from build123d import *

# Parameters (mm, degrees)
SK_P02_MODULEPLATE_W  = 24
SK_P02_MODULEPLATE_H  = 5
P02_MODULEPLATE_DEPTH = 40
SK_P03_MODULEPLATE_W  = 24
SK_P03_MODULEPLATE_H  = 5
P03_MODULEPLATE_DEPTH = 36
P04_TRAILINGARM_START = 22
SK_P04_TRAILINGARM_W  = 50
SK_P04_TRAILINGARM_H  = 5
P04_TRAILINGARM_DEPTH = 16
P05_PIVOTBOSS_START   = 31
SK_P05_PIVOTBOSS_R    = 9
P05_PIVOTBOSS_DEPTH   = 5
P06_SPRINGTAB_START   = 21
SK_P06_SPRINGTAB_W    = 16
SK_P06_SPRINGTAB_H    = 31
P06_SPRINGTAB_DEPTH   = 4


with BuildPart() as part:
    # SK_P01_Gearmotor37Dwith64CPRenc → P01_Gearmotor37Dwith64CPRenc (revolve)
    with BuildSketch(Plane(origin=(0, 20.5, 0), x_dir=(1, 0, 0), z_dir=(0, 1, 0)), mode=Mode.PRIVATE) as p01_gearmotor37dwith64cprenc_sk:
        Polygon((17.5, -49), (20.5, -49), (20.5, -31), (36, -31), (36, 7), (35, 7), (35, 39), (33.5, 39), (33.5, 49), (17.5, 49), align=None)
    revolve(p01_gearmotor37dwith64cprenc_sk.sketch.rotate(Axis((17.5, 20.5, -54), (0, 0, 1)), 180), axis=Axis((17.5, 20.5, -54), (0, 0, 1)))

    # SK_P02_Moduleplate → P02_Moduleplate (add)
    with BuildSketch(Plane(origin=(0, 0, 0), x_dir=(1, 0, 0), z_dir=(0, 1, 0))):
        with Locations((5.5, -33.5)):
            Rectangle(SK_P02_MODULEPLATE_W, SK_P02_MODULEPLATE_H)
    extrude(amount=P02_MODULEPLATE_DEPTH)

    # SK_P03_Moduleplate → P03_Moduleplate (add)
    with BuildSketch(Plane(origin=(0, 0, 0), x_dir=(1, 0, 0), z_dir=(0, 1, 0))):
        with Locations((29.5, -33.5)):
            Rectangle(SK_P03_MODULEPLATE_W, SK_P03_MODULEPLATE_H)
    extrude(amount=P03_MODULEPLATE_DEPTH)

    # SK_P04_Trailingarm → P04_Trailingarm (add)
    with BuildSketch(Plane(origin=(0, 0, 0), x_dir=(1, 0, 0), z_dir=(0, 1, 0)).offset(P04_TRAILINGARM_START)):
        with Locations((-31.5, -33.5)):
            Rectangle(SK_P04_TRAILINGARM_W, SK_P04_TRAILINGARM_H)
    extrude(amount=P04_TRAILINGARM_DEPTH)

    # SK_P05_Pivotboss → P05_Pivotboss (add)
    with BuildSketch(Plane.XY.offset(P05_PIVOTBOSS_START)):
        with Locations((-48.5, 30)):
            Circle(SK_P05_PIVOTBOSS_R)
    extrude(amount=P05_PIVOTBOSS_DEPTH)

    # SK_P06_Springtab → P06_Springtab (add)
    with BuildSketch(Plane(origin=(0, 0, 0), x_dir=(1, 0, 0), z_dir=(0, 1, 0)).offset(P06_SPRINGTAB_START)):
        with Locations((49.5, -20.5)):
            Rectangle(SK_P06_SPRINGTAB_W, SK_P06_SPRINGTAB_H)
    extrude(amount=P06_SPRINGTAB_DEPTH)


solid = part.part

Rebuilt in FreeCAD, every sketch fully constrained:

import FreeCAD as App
import Part
import Sketcher
from FreeCAD import Vector

doc = App.newDocument("Part")
body = doc.addObject("PartDesign::Body", "Body")

sketch1 = body.newObject("Sketcher::SketchObject", "Sketch")
sketch1.AttachmentSupport = (doc.getObject("XZ_Plane"), [""])
sketch1.MapMode = "FlatFace"
sketch1.AttachmentOffset = App.Placement(Vector(0, 0, -20.5), App.Rotation())
sketch1.addGeometry(Part.LineSegment(Vector(17.5, 49, 0), Vector(20.5, 49, 0)), False)
sketch1.addGeometry(Part.LineSegment(Vector(20.5, 49, 0), Vector(20.5, 31, 0)), False)
sketch1.addGeometry(Part.LineSegment(Vector(20.5, 31, 0), Vector(36, 31, 0)), False)
sketch1.addGeometry(Part.LineSegment(Vector(36, 31, 0), Vector(36, -7, 0)), False)
sketch1.addGeometry(Part.LineSegment(Vector(36, -7, 0), Vector(35, -7, 0)), False)
sketch1.addGeometry(Part.LineSegment(Vector(35, -7, 0), Vector(35, -39, 0)), False)
sketch1.addGeometry(Part.LineSegment(Vector(35, -39, 0), Vector(33.5, -39, 0)), False)
sketch1.addGeometry(Part.LineSegment(Vector(33.5, -39, 0), Vector(33.5, -49, 0)), False)
sketch1.addGeometry(Part.LineSegment(Vector(33.5, -49, 0), Vector(17.5, -49, 0)), False)
sketch1.addGeometry(Part.LineSegment(Vector(17.5, -49, 0), Vector(17.5, 49, 0)), False)
sketch1.addGeometry(Part.LineSegment(Vector(17.5, -49, 0), Vector(17.5, 49, 0)), True)
sketch1.addConstraint(Sketcher.Constraint("Coincident", 0, 2, 1, 1))
sketch1.addConstraint(Sketcher.Constraint("Coincident", 1, 2, 2, 1))
sketch1.addConstraint(Sketcher.Constraint("Coincident", 2, 2, 3, 1))
sketch1.addConstraint(Sketcher.Constraint("Coincident", 3, 2, 4, 1))
sketch1.addConstraint(Sketcher.Constraint("Coincident", 4, 2, 5, 1))
sketch1.addConstraint(Sketcher.Constraint("Coincident", 5, 2, 6, 1))
sketch1.addConstraint(Sketcher.Constraint("Coincident", 6, 2, 7, 1))
sketch1.addConstraint(Sketcher.Constraint("Coincident", 7, 2, 8, 1))
sketch1.addConstraint(Sketcher.Constraint("Coincident", 8, 2, 9, 1))
sketch1.addConstraint(Sketcher.Constraint("Coincident", 9, 2, 0, 1))
sketch1.addConstraint(Sketcher.Constraint("Horizontal", 0))
sketch1.addConstraint(Sketcher.Constraint("Vertical", 1))
sketch1.addConstraint(Sketcher.Constraint("Horizontal", 2))
sketch1.addConstraint(Sketcher.Constraint("Vertical", 3))
sketch1.addConstraint(Sketcher.Constraint("Horizontal", 4))
sketch1.addConstraint(Sketcher.Constraint("Vertical", 5))
sketch1.addConstraint(Sketcher.Constraint("Horizontal", 6))
sketch1.addConstraint(Sketcher.Constraint("Vertical", 7))
sketch1.addConstraint(Sketcher.Constraint("Horizontal", 8))
sketch1.addConstraint(Sketcher.Constraint("Vertical", 9))
sketch1.addConstraint(Sketcher.Constraint("Vertical", 10))
sketch1.addConstraint(Sketcher.Constraint("Coincident", 10, 1, 8, 2))
sketch1.addConstraint(Sketcher.Constraint("Horizontal", 0, 2, 10, 2))
sketch1.addConstraint(Sketcher.Constraint("DistanceX", 0, 1, 0, 2, 3.0))
sketch1.addConstraint(Sketcher.Constraint("DistanceX", 4, 2, 4, 1, 1.0))
sketch1.addConstraint(Sketcher.Constraint("DistanceX", 8, 2, 8, 1, 16.0))
sketch1.addConstraint(Sketcher.Constraint("DistanceY", 1, 2, 1, 1, 18.0))
sketch1.addConstraint(Sketcher.Constraint("DistanceY", 3, 2, 3, 1, 38.0))
sketch1.addConstraint(Sketcher.Constraint("DistanceY", 5, 2, 5, 1, 32.0))
sketch1.addConstraint(Sketcher.Constraint("DistanceY", 7, 2, 7, 1, 10.0))
sketch1.addConstraint(Sketcher.Constraint("DistanceX", 2, 1, 2, 2, 15.5))
sketch1.addConstraint(Sketcher.Constraint("DistanceY", -1, 1, 0, 2, 49.0))
sketch1.addConstraint(Sketcher.Constraint("DistanceX", -1, 1, 2, 2, 36.0))
revolution = body.newObject("PartDesign::Revolution", "Revolution")
revolution.Profile = sketch1
revolution.ReferenceAxis = (sketch1, ["Axis0"])
revolution.Angle = 360

sketch2 = body.newObject("Sketcher::SketchObject", "Sketch001")
sketch2.AttachmentSupport = (doc.getObject("XZ_Plane"), [""])
sketch2.MapMode = "FlatFace"
sketch2.addGeometry(Part.LineSegment(Vector(-6, 31, 0), Vector(-6, 36, 0)), False)
sketch2.addGeometry(Part.LineSegment(Vector(-6, 36, 0), Vector(18, 36, 0)), False)
sketch2.addGeometry(Part.LineSegment(Vector(18, 36, 0), Vector(18, 31, 0)), False)
sketch2.addGeometry(Part.LineSegment(Vector(18, 31, 0), Vector(-6, 31, 0)), False)
sketch2.addConstraint(Sketcher.Constraint("Coincident", 0, 2, 1, 1))
sketch2.addConstraint(Sketcher.Constraint("Coincident", 1, 2, 2, 1))
sketch2.addConstraint(Sketcher.Constraint("Coincident", 2, 2, 3, 1))
sketch2.addConstraint(Sketcher.Constraint("Coincident", 3, 2, 0, 1))
sketch2.addConstraint(Sketcher.Constraint("Vertical", 0))
sketch2.addConstraint(Sketcher.Constraint("Horizontal", 1))
sketch2.addConstraint(Sketcher.Constraint("Vertical", 2))
sketch2.addConstraint(Sketcher.Constraint("Horizontal", 3))
sketch2.addConstraint(Sketcher.Constraint("DistanceX", 1, 1, 1, 2, 24.0))
sketch2.addConstraint(Sketcher.Constraint("DistanceY", 0, 1, 0, 2, 5.0))
sketch2.addConstraint(Sketcher.Constraint("DistanceY", -1, 1, 0, 2, 36.0))
sketch2.addConstraint(Sketcher.Constraint("DistanceX", 0, 2, -1, 1, 6.5))
pad1 = body.newObject("PartDesign::Pad", "Pad")
pad1.Profile = sketch2
pad1.Length = 40
pad1.Reversed = True

sketch3 = body.newObject("Sketcher::SketchObject", "Sketch002")
sketch3.AttachmentSupport = (doc.getObject("XZ_Plane"), [""])
sketch3.MapMode = "FlatFace"
sketch3.addGeometry(Part.LineSegment(Vector(18, 31, 0), Vector(18, 36, 0)), False)
sketch3.addGeometry(Part.LineSegment(Vector(18, 36, 0), Vector(42, 36, 0)), False)
sketch3.addGeometry(Part.LineSegment(Vector(42, 36, 0), Vector(42, 31, 0)), False)
sketch3.addGeometry(Part.LineSegment(Vector(42, 31, 0), Vector(18, 31, 0)), False)
sketch3.addConstraint(Sketcher.Constraint("Coincident", 0, 2, 1, 1))
sketch3.addConstraint(Sketcher.Constraint("Coincident", 1, 2, 2, 1))
sketch3.addConstraint(Sketcher.Constraint("Coincident", 2, 2, 3, 1))
sketch3.addConstraint(Sketcher.Constraint("Coincident", 3, 2, 0, 1))
sketch3.addConstraint(Sketcher.Constraint("Vertical", 0))
sketch3.addConstraint(Sketcher.Constraint("Horizontal", 1))
sketch3.addConstraint(Sketcher.Constraint("Vertical", 2))
sketch3.addConstraint(Sketcher.Constraint("Horizontal", 3))
sketch3.addConstraint(Sketcher.Constraint("DistanceX", 1, 1, 1, 2, 24.0))
sketch3.addConstraint(Sketcher.Constraint("DistanceY", 0, 1, 0, 2, 5.0))
sketch3.addConstraint(Sketcher.Constraint("DistanceY", -1, 1, 0, 2, 36.0))
sketch3.addConstraint(Sketcher.Constraint("DistanceX", -1, 1, 0, 2, 17.5))
pad2 = body.newObject("PartDesign::Pad", "Pad001")
pad2.Profile = sketch3
pad2.Length = 36
pad2.Reversed = True

sketch4 = body.newObject("Sketcher::SketchObject", "Sketch003")
sketch4.AttachmentSupport = (doc.getObject("XZ_Plane"), [""])
sketch4.MapMode = "FlatFace"
sketch4.AttachmentOffset = App.Placement(Vector(0, 0, -22), App.Rotation())
sketch4.addGeometry(Part.LineSegment(Vector(-56, 31, 0), Vector(-56, 36, 0)), False)
sketch4.addGeometry(Part.LineSegment(Vector(-56, 36, 0), Vector(-6, 36, 0)), False)
sketch4.addGeometry(Part.LineSegment(Vector(-6, 36, 0), Vector(-6, 31, 0)), False)
sketch4.addGeometry(Part.LineSegment(Vector(-6, 31, 0), Vector(-56, 31, 0)), False)
sketch4.addConstraint(Sketcher.Constraint("Coincident", 0, 2, 1, 1))
sketch4.addConstraint(Sketcher.Constraint("Coincident", 1, 2, 2, 1))
sketch4.addConstraint(Sketcher.Constraint("Coincident", 2, 2, 3, 1))
sketch4.addConstraint(Sketcher.Constraint("Coincident", 3, 2, 0, 1))
sketch4.addConstraint(Sketcher.Constraint("Vertical", 0))
sketch4.addConstraint(Sketcher.Constraint("Horizontal", 1))
sketch4.addConstraint(Sketcher.Constraint("Vertical", 2))
sketch4.addConstraint(Sketcher.Constraint("Horizontal", 3))
sketch4.addConstraint(Sketcher.Constraint("DistanceX", 1, 1, 1, 2, 50.0))
sketch4.addConstraint(Sketcher.Constraint("DistanceY", 0, 1, 0, 2, 5.0))
sketch4.addConstraint(Sketcher.Constraint("DistanceY", -1, 1, 0, 2, 36.0))
sketch4.addConstraint(Sketcher.Constraint("DistanceX", 0, 2, -1, 1, 56.5))
pad3 = body.newObject("PartDesign::Pad", "Pad002")
pad3.Profile = sketch4
pad3.Length = 16
pad3.Reversed = True

sketch5 = body.newObject("Sketcher::SketchObject", "Sketch004")
sketch5.AttachmentSupport = (doc.getObject("XY_Plane"), [""])
sketch5.MapMode = "FlatFace"
sketch5.AttachmentOffset = App.Placement(Vector(0, 0, 31), App.Rotation())
sketch5.addGeometry(Part.Circle(Vector(-48, 30, 0), Vector(0, 0, 1), 9), False)
sketch5.addConstraint(Sketcher.Constraint("Diameter", 0, 18.0))
sketch5.addConstraint(Sketcher.Constraint("DistanceY", -1, 1, 0, 3, 30.0))
sketch5.addConstraint(Sketcher.Constraint("DistanceX", 0, 3, -1, 1, 48.5))
pad4 = body.newObject("PartDesign::Pad", "Pad003")
pad4.Profile = sketch5
pad4.Length = 5

sketch6 = body.newObject("Sketcher::SketchObject", "Sketch005")
sketch6.AttachmentSupport = (doc.getObject("XZ_Plane"), [""])
sketch6.MapMode = "FlatFace"
sketch6.AttachmentOffset = App.Placement(Vector(0, 0, -21), App.Rotation())
sketch6.addGeometry(Part.LineSegment(Vector(42, 5, 0), Vector(42, 36, 0)), False)
sketch6.addGeometry(Part.LineSegment(Vector(42, 36, 0), Vector(58, 36, 0)), False)
sketch6.addGeometry(Part.LineSegment(Vector(58, 36, 0), Vector(58, 5, 0)), False)
sketch6.addGeometry(Part.LineSegment(Vector(58, 5, 0), Vector(42, 5, 0)), False)
sketch6.addConstraint(Sketcher.Constraint("Coincident", 0, 2, 1, 1))
sketch6.addConstraint(Sketcher.Constraint("Coincident", 1, 2, 2, 1))
sketch6.addConstraint(Sketcher.Constraint("Coincident", 2, 2, 3, 1))
sketch6.addConstraint(Sketcher.Constraint("Coincident", 3, 2, 0, 1))
sketch6.addConstraint(Sketcher.Constraint("Vertical", 0))
sketch6.addConstraint(Sketcher.Constraint("Horizontal", 1))
sketch6.addConstraint(Sketcher.Constraint("Vertical", 2))
sketch6.addConstraint(Sketcher.Constraint("Horizontal", 3))
sketch6.addConstraint(Sketcher.Constraint("DistanceX", 1, 1, 1, 2, 16.0))
sketch6.addConstraint(Sketcher.Constraint("DistanceY", 0, 1, 0, 2, 31.0))
sketch6.addConstraint(Sketcher.Constraint("DistanceY", -1, 1, 0, 2, 36.0))
sketch6.addConstraint(Sketcher.Constraint("DistanceX", -1, 1, 0, 2, 41.5))
pad5 = body.newObject("PartDesign::Pad", "Pad004")
pad5.Profile = sketch6
pad5.Length = 4
pad5.Reversed = True

doc.recompute()
